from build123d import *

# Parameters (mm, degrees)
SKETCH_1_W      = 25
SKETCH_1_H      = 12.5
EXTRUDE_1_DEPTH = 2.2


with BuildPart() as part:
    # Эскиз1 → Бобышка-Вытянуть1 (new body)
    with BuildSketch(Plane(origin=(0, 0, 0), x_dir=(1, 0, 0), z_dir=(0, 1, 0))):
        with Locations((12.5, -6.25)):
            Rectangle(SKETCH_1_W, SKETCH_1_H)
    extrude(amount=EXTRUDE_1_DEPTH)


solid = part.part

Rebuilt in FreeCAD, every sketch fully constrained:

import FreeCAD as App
import Part
import Sketcher


def add_polygon(sketch, points):
    """Adds a closed chain of lines whose ends are joined by coincident constraints."""
    first, n = sketch.GeometryCount, len(points)
    for a, b in zip(points, points[1:] + points[:1]):
        sketch.addGeometry(Part.LineSegment(App.Vector(*a, 0), App.Vector(*b, 0)), False)
    for i in range(n):
        sketch.addConstraint(Sketcher.Constraint("Coincident", first + i, 2, first + (i + 1) % n, 1))

doc = App.newDocument("Part")
body = doc.addObject("PartDesign::Body", "Body")

# Sketch on XZ plane
sketch1 = body.newObject("Sketcher::SketchObject", "Sketch")
sketch1.AttachmentSupport = (doc.getObject("XZ_Plane"), [""])
sketch1.MapMode = "FlatFace"
add_polygon(sketch1, [(0, 0), (0, 12), (25, 12), (25, 0)])  # lines 0-3
sketch1.addConstraint(Sketcher.Constraint("Vertical", 0))
sketch1.addConstraint(Sketcher.Constraint("Horizontal", 1))
sketch1.addConstraint(Sketcher.Constraint("Vertical", 2))
sketch1.addConstraint(Sketcher.Constraint("Horizontal", 3))
sketch1.addConstraint(Sketcher.Constraint("Coincident", 3, 2, -1, 1))
sketch1.addConstraint(Sketcher.Constraint("DistanceX", 1, 1, 1, 2, 25.0))
sketch1.addConstraint(Sketcher.Constraint("DistanceY", 0, 1, 0, 2, 12.5))
pad1 = body.newObject("PartDesign::Pad", "Pad")
pad1.Profile = sketch1
pad1.Length = 2.2
pad1.Reversed = True

doc.recompute()
